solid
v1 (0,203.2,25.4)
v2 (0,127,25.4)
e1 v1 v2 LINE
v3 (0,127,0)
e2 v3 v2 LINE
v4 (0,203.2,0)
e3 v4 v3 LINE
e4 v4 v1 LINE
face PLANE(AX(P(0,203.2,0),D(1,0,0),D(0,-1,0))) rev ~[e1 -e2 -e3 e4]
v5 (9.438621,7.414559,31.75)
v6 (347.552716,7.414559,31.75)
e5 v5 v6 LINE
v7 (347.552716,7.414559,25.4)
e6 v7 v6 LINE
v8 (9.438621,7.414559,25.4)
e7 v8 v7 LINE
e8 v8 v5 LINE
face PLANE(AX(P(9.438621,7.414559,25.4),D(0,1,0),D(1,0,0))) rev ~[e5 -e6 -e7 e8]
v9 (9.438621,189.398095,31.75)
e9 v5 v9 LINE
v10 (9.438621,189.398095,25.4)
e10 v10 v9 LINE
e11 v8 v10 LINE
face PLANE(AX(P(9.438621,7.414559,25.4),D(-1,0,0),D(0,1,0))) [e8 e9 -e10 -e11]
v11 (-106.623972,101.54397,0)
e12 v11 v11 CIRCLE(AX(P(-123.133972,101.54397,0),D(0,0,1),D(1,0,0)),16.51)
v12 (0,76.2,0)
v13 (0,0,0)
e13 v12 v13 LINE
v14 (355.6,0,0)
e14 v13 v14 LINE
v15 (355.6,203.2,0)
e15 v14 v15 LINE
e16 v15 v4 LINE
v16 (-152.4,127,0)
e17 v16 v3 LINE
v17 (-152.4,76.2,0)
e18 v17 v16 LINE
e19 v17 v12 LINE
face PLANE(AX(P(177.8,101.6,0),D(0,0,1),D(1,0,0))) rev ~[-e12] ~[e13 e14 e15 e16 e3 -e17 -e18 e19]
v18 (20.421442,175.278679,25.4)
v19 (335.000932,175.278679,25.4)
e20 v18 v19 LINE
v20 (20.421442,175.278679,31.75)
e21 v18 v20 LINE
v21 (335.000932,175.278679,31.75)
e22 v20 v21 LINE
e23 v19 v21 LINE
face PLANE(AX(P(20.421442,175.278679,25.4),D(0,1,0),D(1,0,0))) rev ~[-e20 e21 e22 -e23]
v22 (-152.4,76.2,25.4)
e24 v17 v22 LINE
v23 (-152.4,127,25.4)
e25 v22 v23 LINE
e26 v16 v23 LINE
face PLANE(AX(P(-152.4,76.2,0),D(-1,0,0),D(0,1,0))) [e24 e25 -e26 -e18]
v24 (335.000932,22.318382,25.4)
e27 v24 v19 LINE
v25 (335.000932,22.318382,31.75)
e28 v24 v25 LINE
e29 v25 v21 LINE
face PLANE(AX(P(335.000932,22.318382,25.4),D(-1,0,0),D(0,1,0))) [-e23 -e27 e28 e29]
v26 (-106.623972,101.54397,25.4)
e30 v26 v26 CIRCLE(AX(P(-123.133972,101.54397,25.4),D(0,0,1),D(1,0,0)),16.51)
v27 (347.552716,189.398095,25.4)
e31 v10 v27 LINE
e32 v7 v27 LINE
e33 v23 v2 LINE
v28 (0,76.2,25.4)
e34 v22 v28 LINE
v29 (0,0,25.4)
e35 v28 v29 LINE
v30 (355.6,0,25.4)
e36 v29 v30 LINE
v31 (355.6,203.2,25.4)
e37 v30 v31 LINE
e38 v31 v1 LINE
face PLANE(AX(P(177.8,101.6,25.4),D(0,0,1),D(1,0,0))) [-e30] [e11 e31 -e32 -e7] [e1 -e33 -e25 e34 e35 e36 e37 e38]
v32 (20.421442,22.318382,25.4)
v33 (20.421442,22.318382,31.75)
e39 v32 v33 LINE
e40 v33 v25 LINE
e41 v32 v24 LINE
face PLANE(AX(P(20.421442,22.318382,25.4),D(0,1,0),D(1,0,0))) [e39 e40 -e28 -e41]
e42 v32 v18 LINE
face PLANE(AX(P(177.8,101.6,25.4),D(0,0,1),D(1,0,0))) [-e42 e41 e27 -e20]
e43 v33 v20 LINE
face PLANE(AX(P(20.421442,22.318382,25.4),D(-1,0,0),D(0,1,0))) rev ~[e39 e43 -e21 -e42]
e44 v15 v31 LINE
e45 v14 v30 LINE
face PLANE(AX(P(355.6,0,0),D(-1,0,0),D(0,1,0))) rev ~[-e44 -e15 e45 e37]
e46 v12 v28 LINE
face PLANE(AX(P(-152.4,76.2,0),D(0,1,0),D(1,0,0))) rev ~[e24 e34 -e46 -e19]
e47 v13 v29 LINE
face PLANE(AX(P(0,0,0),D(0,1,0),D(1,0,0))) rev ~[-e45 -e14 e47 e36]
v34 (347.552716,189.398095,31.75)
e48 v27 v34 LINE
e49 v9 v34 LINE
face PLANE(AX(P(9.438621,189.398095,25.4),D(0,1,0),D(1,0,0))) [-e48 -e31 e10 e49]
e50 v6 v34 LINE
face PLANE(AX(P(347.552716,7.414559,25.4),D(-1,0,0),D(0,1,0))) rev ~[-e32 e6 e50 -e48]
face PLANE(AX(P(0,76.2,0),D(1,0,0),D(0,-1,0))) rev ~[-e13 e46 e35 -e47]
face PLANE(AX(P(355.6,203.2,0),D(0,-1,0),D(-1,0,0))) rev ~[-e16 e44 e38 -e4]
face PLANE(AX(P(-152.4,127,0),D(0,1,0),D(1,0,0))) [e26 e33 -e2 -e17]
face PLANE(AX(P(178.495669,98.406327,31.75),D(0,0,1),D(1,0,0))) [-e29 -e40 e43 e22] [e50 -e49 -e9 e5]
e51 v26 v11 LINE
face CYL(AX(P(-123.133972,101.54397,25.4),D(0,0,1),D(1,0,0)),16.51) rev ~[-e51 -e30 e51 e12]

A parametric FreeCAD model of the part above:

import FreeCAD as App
import Part
import Sketcher
from FreeCAD import Vector
Q = App.Units.Quantity

doc = App.newDocument("Part")
body = doc.addObject("PartDesign::Body", "Body")

sketch1 = body.newObject("Sketcher::SketchObject", "Sketch")
sketch1.AttachmentSupport = (doc.getObject("XY_Plane"), [""])
sketch1.MapMode = "FlatFace"
sketch1.addGeometry([
    Part.LineSegment(Vector(0, 0, 0), Vector(356, 0, 0)),
    Part.LineSegment(Vector(356, 0, 0), Vector(356, 203, 0)),
    Part.LineSegment(Vector(356, 203, 0), Vector(0, 203, 0)),
    Part.LineSegment(Vector(0, 203, 0), Vector(0, 127, 0)),
    Part.LineSegment(Vector(0, 127, 0), Vector(-152, 127, 0)),
    Part.LineSegment(Vector(-152, 127, 0), Vector(-152, 76, 0)),
    Part.LineSegment(Vector(-152, 76, 0), Vector(0, 76, 0)),
    Part.LineSegment(Vector(0, 76, 0), Vector(0, 0, 0)),
], False)
sketch1.addConstraint([
    Sketcher.Constraint("Coincident", 0, 2, 1, 1),
    Sketcher.Constraint("Coincident", 1, 2, 2, 1),
    Sketcher.Constraint("Coincident", 2, 2, 3, 1),
    Sketcher.Constraint("Coincident", 3, 2, 4, 1),
    Sketcher.Constraint("Coincident", 4, 2, 5, 1),
    Sketcher.Constraint("Coincident", 5, 2, 6, 1),
    Sketcher.Constraint("Coincident", 6, 2, 7, 1),
    Sketcher.Constraint("Coincident", 7, 2, 0, 1),
    Sketcher.Constraint("Horizontal", 0),
    Sketcher.Constraint("Vertical", 1),
    Sketcher.Constraint("Horizontal", 2),
    Sketcher.Constraint("Vertical", 3),
    Sketcher.Constraint("Horizontal", 4),
    Sketcher.Constraint("Vertical", 5),
    Sketcher.Constraint("Horizontal", 6),
    Sketcher.Constraint("Vertical", 7),
    Sketcher.Constraint("Coincident", 7, 2, -1, 1),
    Sketcher.Constraint("PointOnObject", 2, 2, -2),
    Sketcher.Constraint("Equal", 3, 7),
    Sketcher.Constraint("DistanceX", 0, 1, 0, 2, Q("14 in")),
    Sketcher.Constraint("DistanceX", 4, 2, 4, 1, Q("6 in")),
    Sketcher.Constraint("DistanceY", 1, 1, 1, 2, Q("8 in")),
    Sketcher.Constraint("DistanceY", 3, 2, 3, 1, Q("3 in")),
])
pad1 = body.newObject("PartDesign::Pad", "Pad")
pad1.Profile = sketch1
pad1.Length = Q("1 in")

sketch2 = body.newObject("Sketcher::SketchObject", "Sketch001")
sketch2.AttachmentSupport = (doc.getObject("XY_Plane"), [""])
sketch2.MapMode = "FlatFace"
sketch2.AttachmentOffset = App.Placement(Vector(0, 0, 1 * 25.4), App.Rotation())
sketch2.addGeometry([
    Part.LineSegment(Vector(9, 189, 0), Vector(9, 7, 0)),
    Part.LineSegment(Vector(9, 7, 0), Vector(348, 7, 0)),
    Part.LineSegment(Vector(348, 7, 0), Vector(348, 189, 0)),
    Part.LineSegment(Vector(348, 189, 0), Vector(9, 189, 0)),
    Part.LineSegment(Vector(335, 22, 0), Vector(20, 22, 0)),
    Part.LineSegment(Vector(20, 22, 0), Vector(20, 175, 0)),
    Part.LineSegment(Vector(20, 175, 0), Vector(335, 175, 0)),
    Part.LineSegment(Vector(335, 175, 0), Vector(335, 22, 0)),
], False)
sketch2.addConstraint([
    Sketcher.Constraint("Coincident", 0, 2, 1, 1),
    Sketcher.Constraint("Coincident", 1, 2, 2, 1),
    Sketcher.Constraint("Coincident", 2, 2, 3, 1),
    Sketcher.Constraint("Coincident", 3, 2, 0, 1),
    Sketcher.Constraint("Coincident", 4, 2, 5, 1),
    Sketcher.Constraint("Coincident", 5, 2, 6, 1),
    Sketcher.Constraint("Coincident", 6, 2, 7, 1),
    Sketcher.Constraint("Coincident", 7, 2, 4, 1),
    Sketcher.Constraint("Vertical", 0),
    Sketcher.Constraint("Horizontal", 1),
    Sketcher.Constraint("Vertical", 2),
    Sketcher.Constraint("Horizontal", 3),
    Sketcher.Constraint("Horizontal", 4),
    Sketcher.Constraint("Vertical", 5),
    Sketcher.Constraint("Horizontal", 6),
    Sketcher.Constraint("Vertical", 7),
    Sketcher.Constraint("DistanceX", 4, 2, 4, 1, 314.57949),
    Sketcher.Constraint("DistanceX", 1, 1, 1, 2, 338.114095),
    Sketcher.Constraint("DistanceY", 0, 2, 0, 1, 181.983536),
    Sketcher.Constraint("DistanceY", 5, 1, 5, 2, 152.960297),
    Sketcher.Constraint("DistanceX", -1, 1, 0, 2, 9.438621),
    Sketcher.Constraint("DistanceY", -1, 1, 0, 2, 7.414559),
    Sketcher.Constraint("DistanceX", -1, 1, 4, 2, 20.421442),
    Sketcher.Constraint("DistanceY", -1, 1, 4, 2, 22.318382),
])
pad2 = body.newObject("PartDesign::Pad", "Pad001")
pad2.Profile = sketch2
pad2.Length = Q("0.25 in")

sketch3 = body.newObject("Sketcher::SketchObject", "Sketch002")
sketch3.AttachmentSupport = (doc.getObject("XY_Plane"), [""])
sketch3.MapMode = "FlatFace"
sketch3.AttachmentOffset = App.Placement(Vector(0, 0, 1 * 25.4), App.Rotation())
sketch3.addGeometry(Part.Circle(Vector(-123, 102, 0), Vector(0, 0, 1), 17), False)
sketch3.addConstraint([
    Sketcher.Constraint("Diameter", 0, Q("1.3 in")),
    Sketcher.Constraint("DistanceX", 0, 3, -1, 1, 123.133972),
    Sketcher.Constraint("DistanceY", -1, 1, 0, 3, 101.54397),
])
pocket1 = body.newObject("PartDesign::Pocket", "Pocket")
pocket1.Profile = sketch3
pocket1.Length = Q("1 in")

doc.recompute()
